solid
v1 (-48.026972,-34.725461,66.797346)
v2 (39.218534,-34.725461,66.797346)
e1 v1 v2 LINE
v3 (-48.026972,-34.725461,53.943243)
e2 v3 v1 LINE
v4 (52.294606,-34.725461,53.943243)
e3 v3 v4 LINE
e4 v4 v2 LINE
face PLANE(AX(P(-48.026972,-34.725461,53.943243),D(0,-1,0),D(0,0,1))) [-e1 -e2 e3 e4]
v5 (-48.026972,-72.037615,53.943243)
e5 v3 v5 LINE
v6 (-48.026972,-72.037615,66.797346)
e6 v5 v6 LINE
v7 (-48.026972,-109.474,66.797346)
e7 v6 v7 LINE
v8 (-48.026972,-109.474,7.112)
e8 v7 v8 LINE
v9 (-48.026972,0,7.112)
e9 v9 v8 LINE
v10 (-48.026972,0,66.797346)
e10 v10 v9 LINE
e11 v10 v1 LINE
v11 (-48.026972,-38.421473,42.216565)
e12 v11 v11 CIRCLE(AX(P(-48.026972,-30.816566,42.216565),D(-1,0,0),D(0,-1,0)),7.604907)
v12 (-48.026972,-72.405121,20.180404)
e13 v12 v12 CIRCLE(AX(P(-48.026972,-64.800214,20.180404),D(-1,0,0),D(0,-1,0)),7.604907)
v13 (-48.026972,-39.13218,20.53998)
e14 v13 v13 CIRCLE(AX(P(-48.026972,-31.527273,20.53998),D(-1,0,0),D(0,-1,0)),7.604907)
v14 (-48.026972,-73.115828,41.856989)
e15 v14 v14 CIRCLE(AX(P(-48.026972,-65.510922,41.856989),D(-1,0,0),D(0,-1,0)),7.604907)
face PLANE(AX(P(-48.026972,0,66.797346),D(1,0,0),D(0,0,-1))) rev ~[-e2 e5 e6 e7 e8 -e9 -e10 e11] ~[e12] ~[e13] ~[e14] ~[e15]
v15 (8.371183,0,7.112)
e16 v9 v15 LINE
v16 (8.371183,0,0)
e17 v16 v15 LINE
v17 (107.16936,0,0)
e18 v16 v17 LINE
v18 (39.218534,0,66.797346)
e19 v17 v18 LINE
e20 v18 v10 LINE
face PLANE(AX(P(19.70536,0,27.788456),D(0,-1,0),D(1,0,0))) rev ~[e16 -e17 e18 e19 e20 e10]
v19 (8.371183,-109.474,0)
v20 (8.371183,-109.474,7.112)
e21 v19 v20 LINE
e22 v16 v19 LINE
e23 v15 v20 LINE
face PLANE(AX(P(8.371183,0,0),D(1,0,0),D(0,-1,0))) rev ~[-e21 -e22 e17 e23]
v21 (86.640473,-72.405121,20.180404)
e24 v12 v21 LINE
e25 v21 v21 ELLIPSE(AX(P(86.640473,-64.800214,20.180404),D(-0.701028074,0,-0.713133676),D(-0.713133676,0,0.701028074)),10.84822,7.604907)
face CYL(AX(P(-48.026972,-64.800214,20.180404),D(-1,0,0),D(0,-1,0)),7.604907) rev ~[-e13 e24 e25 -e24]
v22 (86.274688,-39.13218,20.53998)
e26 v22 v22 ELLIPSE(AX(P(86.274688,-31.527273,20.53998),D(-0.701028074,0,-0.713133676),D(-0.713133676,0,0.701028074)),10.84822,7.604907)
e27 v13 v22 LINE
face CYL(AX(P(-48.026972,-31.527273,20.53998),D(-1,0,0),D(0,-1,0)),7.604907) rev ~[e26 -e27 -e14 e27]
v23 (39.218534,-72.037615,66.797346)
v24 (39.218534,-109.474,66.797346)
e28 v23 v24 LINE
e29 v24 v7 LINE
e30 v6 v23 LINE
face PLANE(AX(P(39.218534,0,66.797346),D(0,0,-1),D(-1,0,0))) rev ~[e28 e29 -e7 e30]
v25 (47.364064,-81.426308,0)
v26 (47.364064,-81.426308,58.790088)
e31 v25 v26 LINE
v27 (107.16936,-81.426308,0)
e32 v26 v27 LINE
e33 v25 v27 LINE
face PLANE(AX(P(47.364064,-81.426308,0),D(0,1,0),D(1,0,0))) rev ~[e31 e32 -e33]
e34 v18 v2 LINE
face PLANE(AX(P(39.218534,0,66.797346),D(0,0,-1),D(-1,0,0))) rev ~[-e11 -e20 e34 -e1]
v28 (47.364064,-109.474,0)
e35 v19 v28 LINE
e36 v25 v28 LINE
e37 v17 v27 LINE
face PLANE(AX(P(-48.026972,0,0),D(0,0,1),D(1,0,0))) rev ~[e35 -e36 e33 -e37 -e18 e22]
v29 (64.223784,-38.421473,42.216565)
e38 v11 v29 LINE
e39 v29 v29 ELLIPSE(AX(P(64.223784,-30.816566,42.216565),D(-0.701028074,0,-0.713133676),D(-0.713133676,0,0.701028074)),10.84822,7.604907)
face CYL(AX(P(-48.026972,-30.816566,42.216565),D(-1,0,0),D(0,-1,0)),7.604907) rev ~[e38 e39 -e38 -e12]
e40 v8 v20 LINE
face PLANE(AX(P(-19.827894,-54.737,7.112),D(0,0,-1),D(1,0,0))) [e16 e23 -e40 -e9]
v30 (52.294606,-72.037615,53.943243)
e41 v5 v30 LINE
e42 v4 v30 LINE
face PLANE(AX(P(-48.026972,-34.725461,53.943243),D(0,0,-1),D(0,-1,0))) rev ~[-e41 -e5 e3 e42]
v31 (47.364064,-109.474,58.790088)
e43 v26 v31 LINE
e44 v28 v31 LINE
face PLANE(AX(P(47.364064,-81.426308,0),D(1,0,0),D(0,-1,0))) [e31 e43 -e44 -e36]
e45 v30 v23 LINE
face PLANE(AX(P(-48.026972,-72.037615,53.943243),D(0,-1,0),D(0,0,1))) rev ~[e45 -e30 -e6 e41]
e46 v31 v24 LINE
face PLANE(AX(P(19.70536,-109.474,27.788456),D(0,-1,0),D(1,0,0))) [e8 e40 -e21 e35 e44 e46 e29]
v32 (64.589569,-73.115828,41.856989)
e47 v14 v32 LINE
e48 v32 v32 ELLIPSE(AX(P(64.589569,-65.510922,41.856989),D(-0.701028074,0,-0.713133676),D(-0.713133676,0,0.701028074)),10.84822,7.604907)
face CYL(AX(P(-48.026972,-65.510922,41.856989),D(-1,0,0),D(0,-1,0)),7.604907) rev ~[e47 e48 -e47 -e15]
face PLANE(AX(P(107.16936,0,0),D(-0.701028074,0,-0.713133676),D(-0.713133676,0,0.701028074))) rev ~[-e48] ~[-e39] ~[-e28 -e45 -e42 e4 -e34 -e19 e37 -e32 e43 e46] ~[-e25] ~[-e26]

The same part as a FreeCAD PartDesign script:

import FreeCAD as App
import Part
import Sketcher

V = App.Vector
Q = App.Units.Quantity


def add_polygon(sketch, points):
    """Adds a closed chain of lines whose ends are joined by coincident constraints."""
    first, n = sketch.GeometryCount, len(points)
    for a, b in zip(points, points[1:] + points[:1]):
        sketch.addGeometry(Part.LineSegment(App.Vector(*a, 0), App.Vector(*b, 0)), False)
    for i in range(n):
        sketch.addConstraint(Sketcher.Constraint("Coincident", first + i, 2, first + (i + 1) % n, 1))

doc = App.newDocument("Part")
body = doc.addObject("PartDesign::Body", "Body")

# Sketch on XZ plane
sketch1 = body.newObject("Sketcher::SketchObject", "Sketch")
sketch1.AttachmentSupport = (doc.getObject("XZ_Plane"), [""])
sketch1.MapMode = "FlatFace"
add_polygon(sketch1, [(-48.026972, 66.797346), (-48.026972, 0), (107.16936, 0), (39.218534, 66.797346)])  # lines 0-3
sketch1.addConstraint([
    Sketcher.Constraint("Vertical", 0),
    Sketcher.Constraint("Horizontal", 1),
    Sketcher.Constraint("Horizontal", 3),
    Sketcher.Constraint("PointOnObject", 0, 2, -1),
    Sketcher.Constraint("DistanceX", 1, 1, 1, 2, 155.196331),
    Sketcher.Constraint("DistanceX", 3, 2, 3, 1, 87.245505),
    Sketcher.Constraint("DistanceY", 0, 2, 0, 1, 66.797346),
    Sketcher.Constraint("DistanceX", 0, 2, -1, 1, 48.026972),
])
pad1 = body.newObject("PartDesign::Pad", "Pad")
pad1.Profile = sketch1
pad1.Length = Q("4.31 in")

# Sketch on YZ plane
sketch2 = body.newObject("Sketcher::SketchObject", "Sketch001")
sketch2.AttachmentSupport = (doc.getObject("YZ_Plane"), [""])
sketch2.MapMode = "FlatFace"
sketch2.AttachmentOffset = App.Placement(V(0, 0, -48.026972), App.Rotation())
add_polygon(sketch2, [(-34.725461, 66.797346), (-34.725461, 53.943243), (-72.037615, 53.943243), (-72.037615, 66.797346)])  # lines 0-3
sketch2.addGeometry(Part.Circle(V(-30.816566, 42.216565, 0), V(0, 0, 1), 7.604907), False)  # 4
sketch2.addGeometry(Part.Circle(V(-31.527273, 20.53998, 0), V(0, 0, 1), 7.604907), False)  # 5
sketch2.addGeometry(Part.Circle(V(-64.800214, 20.180404, 0), V(0, 0, 1), 7.604907), False)  # 6
sketch2.addGeometry(Part.Circle(V(-65.510922, 41.856989, 0), V(0, 0, 1), 7.604907), False)  # 7
sketch2.addConstraint([
    Sketcher.Constraint("Vertical", 0),
    Sketcher.Constraint("Horizontal", 1),
    Sketcher.Constraint("Vertical", 2),
    Sketcher.Constraint("Horizontal", 3),
    Sketcher.Constraint("Equal", 4, 5),
    Sketcher.Constraint("Equal", 5, 6),
    Sketcher.Constraint("Equal", 6, 7),
    Sketcher.Constraint("Diameter", 4, 15.209813),
    Sketcher.Constraint("DistanceX", 1, 2, 6, 3, 7.2374),
    Sketcher.Constraint("DistanceX", 1, 2, 1, 1, 37.312154),
    Sketcher.Constraint("DistanceY", 0, 2, 0, 1, 12.854103),
    Sketcher.Constraint("DistanceY", -1, 1, 5, 3, 20.53998),
    Sketcher.Constraint("DistanceX", 7, 3, -1, 1, 65.510922),
    Sketcher.Constraint("DistanceY", -1, 1, 7, 3, 41.856989),
    Sketcher.Constraint("DistanceX", 0, 2, -1, 1, 34.725461),
    Sketcher.Constraint("DistanceX", 6, 3, 5, 3, 33.272941),
    Sketcher.Constraint("DistanceX", 6, 3, 4, 3, 33.983648),
    Sketcher.Constraint("DistanceY", 6, 3, 4, 3, 22.036161),
    Sketcher.Constraint("DistanceY", 6, 3, 0, 2, 33.762839),
    Sketcher.Constraint("DistanceY", -1, 1, 4, 3, 42.216565),
])
pocket1 = body.newObject("PartDesign::Pocket", "Pocket")
pocket1.Profile = sketch2
pocket1.Type = "ThroughAll"
pocket1.Reversed = True

# Sketch on XY plane
sketch3 = body.newObject("Sketcher::SketchObject", "Sketch002")
sketch3.AttachmentSupport = (doc.getObject("XY_Plane"), [""])
sketch3.MapMode = "FlatFace"
add_polygon(sketch3, [(47.364064, -109.474), (47.364064, -81.426308), (107.16936, -81.426308), (107.16936, -109.474)])  # lines 0-3
sketch3.addConstraint([
    Sketcher.Constraint("Vertical", 0),
    Sketcher.Constraint("Horizontal", 1),
    Sketcher.Constraint("Vertical", 2),
    Sketcher.Constraint("Horizontal", 3),
    Sketcher.Constraint("DistanceY", 2, 2, -1, 1, Q("4.31 in")),
    Sketcher.Constraint("DistanceX", 1, 1, 1, 2, 59.805296),
    Sketcher.Constraint("DistanceY", 0, 1, 0, 2, 28.047692),
    Sketcher.Constraint("DistanceX", -1, 1, 1, 2, 107.16936),
])
pocket2 = body.newObject("PartDesign::Pocket", "Pocket001")
pocket2.Profile = sketch3
pocket2.Type = "ThroughAll"
pocket2.Reversed = True

# Sketch on XY plane
sketch4 = body.newObject("Sketcher::SketchObject", "Sketch003")
sketch4.AttachmentSupport = (doc.getObject("XY_Plane"), [""])
sketch4.MapMode = "FlatFace"
add_polygon(sketch4, [(-48.026972, -109.474), (-48.026972, 0), (8.371183, 0), (8.371183, -109.474)])  # lines 0-3
sketch4.addConstraint([
    Sketcher.Constraint("Vertical", 0),
    Sketcher.Constraint("Horizontal", 1),
    Sketcher.Constraint("Vertical", 2),
    Sketcher.Constraint("Horizontal", 3),
    Sketcher.Constraint("PointOnObject", 0, 2, -1),
    Sketcher.Constraint("DistanceY", 0, 1, 0, 2, Q("4.31 in")),
    Sketcher.Constraint("DistanceX", 1, 1, 1, 2, 56.398154),
    Sketcher.Constraint("DistanceX", 0, 2, -1, 1, 48.026972),
])
pocket3 = body.newObject("PartDesign::Pocket", "Pocket002")
pocket3.Profile = sketch4
pocket3.Length = Q("0.28 in")
pocket3.Reversed = True

doc.recompute()
